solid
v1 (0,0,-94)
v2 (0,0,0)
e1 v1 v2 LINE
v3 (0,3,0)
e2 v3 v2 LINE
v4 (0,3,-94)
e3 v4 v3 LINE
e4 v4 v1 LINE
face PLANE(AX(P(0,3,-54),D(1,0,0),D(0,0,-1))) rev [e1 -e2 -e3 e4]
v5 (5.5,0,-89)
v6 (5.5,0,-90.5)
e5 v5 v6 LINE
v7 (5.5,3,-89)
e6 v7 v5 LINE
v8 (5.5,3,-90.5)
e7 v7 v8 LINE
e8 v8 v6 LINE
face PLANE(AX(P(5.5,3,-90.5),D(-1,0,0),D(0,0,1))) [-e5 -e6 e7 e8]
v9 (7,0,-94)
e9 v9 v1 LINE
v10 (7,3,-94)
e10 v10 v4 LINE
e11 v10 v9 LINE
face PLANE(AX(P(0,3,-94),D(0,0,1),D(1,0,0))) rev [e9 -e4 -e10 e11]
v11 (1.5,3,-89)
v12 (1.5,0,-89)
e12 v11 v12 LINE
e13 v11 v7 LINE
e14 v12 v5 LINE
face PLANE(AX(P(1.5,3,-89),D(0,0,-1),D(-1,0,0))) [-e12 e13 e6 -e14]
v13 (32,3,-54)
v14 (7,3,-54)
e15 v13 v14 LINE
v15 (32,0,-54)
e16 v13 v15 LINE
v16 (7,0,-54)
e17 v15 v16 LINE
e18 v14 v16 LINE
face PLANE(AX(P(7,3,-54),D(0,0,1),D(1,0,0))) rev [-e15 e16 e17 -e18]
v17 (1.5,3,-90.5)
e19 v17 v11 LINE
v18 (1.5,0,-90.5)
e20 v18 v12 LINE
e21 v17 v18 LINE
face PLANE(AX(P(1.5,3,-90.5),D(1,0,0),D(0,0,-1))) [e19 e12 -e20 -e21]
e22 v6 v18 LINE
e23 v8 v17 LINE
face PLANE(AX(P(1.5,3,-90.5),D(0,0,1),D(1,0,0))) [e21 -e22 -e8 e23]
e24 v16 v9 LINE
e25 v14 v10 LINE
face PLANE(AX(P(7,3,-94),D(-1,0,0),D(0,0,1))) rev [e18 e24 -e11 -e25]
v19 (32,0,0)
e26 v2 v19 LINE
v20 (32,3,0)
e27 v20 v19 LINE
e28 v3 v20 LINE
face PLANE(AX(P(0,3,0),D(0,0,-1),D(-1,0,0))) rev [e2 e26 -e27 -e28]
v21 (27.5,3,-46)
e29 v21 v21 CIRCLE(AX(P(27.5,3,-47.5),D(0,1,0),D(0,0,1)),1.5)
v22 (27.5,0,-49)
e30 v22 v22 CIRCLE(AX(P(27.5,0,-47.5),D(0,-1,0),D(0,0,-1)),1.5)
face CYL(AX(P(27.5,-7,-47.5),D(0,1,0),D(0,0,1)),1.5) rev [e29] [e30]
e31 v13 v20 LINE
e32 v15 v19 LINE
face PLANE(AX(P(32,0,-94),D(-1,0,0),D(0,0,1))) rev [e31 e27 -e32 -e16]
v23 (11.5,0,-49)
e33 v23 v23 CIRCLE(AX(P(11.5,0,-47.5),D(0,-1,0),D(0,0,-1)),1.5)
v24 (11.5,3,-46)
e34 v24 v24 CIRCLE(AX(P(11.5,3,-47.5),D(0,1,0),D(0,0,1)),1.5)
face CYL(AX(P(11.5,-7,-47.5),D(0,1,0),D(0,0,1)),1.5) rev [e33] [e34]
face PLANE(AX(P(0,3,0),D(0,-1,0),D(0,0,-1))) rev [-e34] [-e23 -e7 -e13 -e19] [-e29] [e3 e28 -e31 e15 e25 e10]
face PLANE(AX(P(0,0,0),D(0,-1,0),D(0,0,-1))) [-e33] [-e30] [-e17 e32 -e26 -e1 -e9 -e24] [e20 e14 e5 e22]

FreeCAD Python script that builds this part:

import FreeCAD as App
import Part
import Sketcher


def add_polygon(sketch, points):
    """Adds a closed chain of lines whose ends are joined by coincident constraints."""
    first, n = sketch.GeometryCount, len(points)
    for a, b in zip(points, points[1:] + points[:1]):
        sketch.addGeometry(Part.LineSegment(App.Vector(*a, 0), App.Vector(*b, 0)), False)
    for i in range(n):
        sketch.addConstraint(Sketcher.Constraint("Coincident", first + i, 2, first + (i + 1) % n, 1))

doc = App.newDocument("Part")
body = doc.addObject("PartDesign::Body", "Body")

sketch1 = body.newObject("Sketcher::SketchObject", "Sketch")
sketch1.AttachmentSupport = (doc.getObject("XZ_Plane"), [""])
sketch1.MapMode = "FlatFace"
add_polygon(sketch1, [(0, -94), (0, 0), (44, 0), (44, -54), (7, -54), (7, -94)])
add_polygon(sketch1, [(1.5, -89), (1.5, -90.5), (5.5, -90.5), (5.5, -89)])
sketch1.addConstraint([
    Sketcher.Constraint("Vertical", 0),
    Sketcher.Constraint("Horizontal", 1),
    Sketcher.Constraint("Vertical", 2),
    Sketcher.Constraint("Horizontal", 3),
    Sketcher.Constraint("Vertical", 4),
    Sketcher.Constraint("Horizontal", 5),
    Sketcher.Constraint("Vertical", 6),
    Sketcher.Constraint("Horizontal", 7),
    Sketcher.Constraint("Vertical", 8),
    Sketcher.Constraint("Horizontal", 9),
    Sketcher.Constraint("Coincident", 0, 2, -1, 1),
    Sketcher.Constraint("DistanceX", 1, 1, 1, 2, 44.0),
    Sketcher.Constraint("DistanceX", 3, 2, 3, 1, 37.0),
    Sketcher.Constraint("DistanceX", 7, 1, 7, 2, 4.0),
    Sketcher.Constraint("DistanceY", 0, 1, 0, 2, 94.0),
    Sketcher.Constraint("DistanceY", 2, 2, 2, 1, 54.0),
    Sketcher.Constraint("DistanceY", 6, 2, 6, 1, 1.5),
    Sketcher.Constraint("DistanceY", 8, 2, -1, 1, 89.0),
    Sketcher.Constraint("DistanceX", -1, 1, 6, 2, 1.5),
])
pad1 = body.newObject("PartDesign::Pad", "Pad")
pad1.Profile = sketch1
pad1.Length = 3
pad1.Reversed = True

sketch2 = body.newObject("Sketcher::SketchObject", "Sketch001")
sketch2.AttachmentSupport = (doc.getObject("XY_Plane"), [""])
sketch2.MapMode = "FlatFace"
add_polygon(sketch2, [(32, 3), (32, 0), (44, 0), (44, 3)])
sketch2.addConstraint([
    Sketcher.Constraint("Vertical", 0),
    Sketcher.Constraint("Horizontal", 1),
    Sketcher.Constraint("Vertical", 2),
    Sketcher.Constraint("Horizontal", 3),
    Sketcher.Constraint("PointOnObject", 0, 2, -1),
    Sketcher.Constraint("DistanceX", 1, 1, 1, 2, 12.0),
    Sketcher.Constraint("DistanceY", 0, 2, 0, 1, 3.0),
    Sketcher.Constraint("DistanceX", -1, 1, 0, 2, 32.0),
])
pocket1 = body.newObject("PartDesign::Pocket", "Pocket")
pocket1.Profile = sketch2
pocket1.Type = "ThroughAll"

sketch3 = body.newObject("Sketcher::SketchObject", "Sketch002")
sketch3.AttachmentSupport = (doc.getObject("XZ_Plane"), [""])
sketch3.MapMode = "FlatFace"
sketch3.AttachmentOffset = App.Placement(App.Vector(0, 0, -3), App.Rotation())
sketch3.addGeometry([
    Part.Circle(App.Vector(11.5, -47.5, 0), App.Vector(0, 0, 1), 1.5),
    Part.Circle(App.Vector(27.5, -47.5, 0), App.Vector(0, 0, 1), 1.5),
], False)
sketch3.addConstraint([
    Sketcher.Constraint("Equal", 0, 1),
    Sketcher.Constraint("Horizontal", 0, 3, 1, 3),
    Sketcher.Constraint("Diameter", 0, 3.0),
    Sketcher.Constraint("DistanceX", 0, 3, 1, 3, 16.0),
    Sketcher.Constraint("DistanceX", -1, 1, 0, 3, 11.5),
    Sketcher.Constraint("DistanceY", 0, 3, -1, 1, 47.5),
])
pocket2 = body.newObject("PartDesign::Pocket", "Pocket001")
pocket2.Profile = sketch3
pocket2.Length = 10
pocket2.Reversed = True

doc.recompute()
